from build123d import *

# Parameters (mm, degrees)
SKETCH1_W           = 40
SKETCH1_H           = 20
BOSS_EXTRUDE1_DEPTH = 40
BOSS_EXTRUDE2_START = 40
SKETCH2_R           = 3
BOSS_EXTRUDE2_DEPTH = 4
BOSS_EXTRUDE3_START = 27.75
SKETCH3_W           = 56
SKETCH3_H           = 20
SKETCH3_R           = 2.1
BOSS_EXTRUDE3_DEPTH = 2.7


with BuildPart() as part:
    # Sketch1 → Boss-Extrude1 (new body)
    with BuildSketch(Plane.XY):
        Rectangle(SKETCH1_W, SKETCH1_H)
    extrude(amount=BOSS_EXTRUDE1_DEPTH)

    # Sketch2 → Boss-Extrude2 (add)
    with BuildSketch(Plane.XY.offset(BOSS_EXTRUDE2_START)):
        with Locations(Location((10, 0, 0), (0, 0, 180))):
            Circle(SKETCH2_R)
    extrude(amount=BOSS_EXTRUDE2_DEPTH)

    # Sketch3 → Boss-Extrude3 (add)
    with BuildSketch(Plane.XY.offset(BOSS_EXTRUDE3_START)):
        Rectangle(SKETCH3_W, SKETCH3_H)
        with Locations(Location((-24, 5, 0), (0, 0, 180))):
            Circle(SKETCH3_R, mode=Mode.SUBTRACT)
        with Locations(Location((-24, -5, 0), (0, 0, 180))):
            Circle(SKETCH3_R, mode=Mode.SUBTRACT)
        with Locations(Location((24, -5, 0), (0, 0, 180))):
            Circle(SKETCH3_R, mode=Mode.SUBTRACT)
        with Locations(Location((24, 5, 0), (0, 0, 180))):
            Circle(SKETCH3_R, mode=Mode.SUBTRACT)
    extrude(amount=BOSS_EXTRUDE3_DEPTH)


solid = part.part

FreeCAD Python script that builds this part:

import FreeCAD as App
import Part
import Sketcher
Q = App.Units.Quantity

doc = App.newDocument("Part")
body = doc.addObject("PartDesign::Body", "Body")

# Sketch on XY plane
sketch1 = doc.addObject("Sketcher::SketchObject", "Sketch")
body.addObject(sketch1)
sketch1.AttachmentSupport = (doc.XY_Plane, [""])
sketch1.MapMode = "FlatFace"
sketch1.addGeometry(Part.LineSegment(App.Vector(-20, 10, 0), App.Vector(-20, -10, 0)), False)
sketch1.addGeometry(Part.LineSegment(App.Vector(-20, -10, 0), App.Vector(20, -10, 0)), False)
sketch1.addGeometry(Part.LineSegment(App.Vector(20, -10, 0), App.Vector(20, 10, 0)), False)
sketch1.addGeometry(Part.LineSegment(App.Vector(20, 10, 0), App.Vector(-20, 10, 0)), False)
sketch1.addConstraint(Sketcher.Constraint("Coincident", 0, 2, 1, 1))
sketch1.addConstraint(Sketcher.Constraint("Coincident", 1, 2, 2, 1))
sketch1.addConstraint(Sketcher.Constraint("Coincident", 2, 2, 3, 1))
sketch1.addConstraint(Sketcher.Constraint("Coincident", 3, 2, 0, 1))
sketch1.addConstraint(Sketcher.Constraint("Vertical", 0))
sketch1.addConstraint(Sketcher.Constraint("Horizontal", 1))
sketch1.addConstraint(Sketcher.Constraint("Vertical", 2))
sketch1.addConstraint(Sketcher.Constraint("Horizontal", 3))
sketch1.addConstraint(Sketcher.Constraint("Symmetric", 0, 2, 2, 2, -1, 1))
sketch1.addConstraint(Sketcher.Constraint("DistanceX", 1, 1, 1, 2, Q("40 mm")))
sketch1.addConstraint(Sketcher.Constraint("DistanceY", 0, 2, 0, 1, Q("20 mm")))
pad1 = doc.addObject("PartDesign::Pad", "Pad")
body.addObject(pad1)
pad1.Profile = sketch1
pad1.Length = 40

# Sketch on XY plane
sketch2 = doc.addObject("Sketcher::SketchObject", "Sketch001")
body.addObject(sketch2)
sketch2.AttachmentSupport = (doc.XY_Plane, [""])
sketch2.MapMode = "FlatFace"
sketch2.AttachmentOffset = App.Placement(App.Vector(0, 0, 40), App.Rotation())
sketch2.addGeometry(Part.Circle(App.Vector(10, 0, 0), App.Vector(0, 0, 1), 3), False)
sketch2.addConstraint(Sketcher.Constraint("PointOnObject", 0, 3, -1))
sketch2.addConstraint(Sketcher.Constraint("Diameter", 0, Q("6 mm")))
sketch2.addConstraint(Sketcher.Constraint("DistanceX", -1, 1, 0, 3, Q("10 mm")))
pad2 = doc.addObject("PartDesign::Pad", "Pad001")
body.addObject(pad2)
pad2.Profile = sketch2
pad2.Length = 4

# Sketch on XY plane
sketch3 = doc.addObject("Sketcher::SketchObject", "Sketch002")
body.addObject(sketch3)
sketch3.AttachmentSupport = (doc.XY_Plane, [""])
sketch3.MapMode = "FlatFace"
sketch3.AttachmentOffset = App.Placement(App.Vector(0, 0, 27.75), App.Rotation())
sketch3.addGeometry(Part.LineSegment(App.Vector(-28, 10, 0), App.Vector(-28, -10, 0)), False)
sketch3.addGeometry(Part.LineSegment(App.Vector(-28, -10, 0), App.Vector(28, -10, 0)), False)
sketch3.addGeometry(Part.LineSegment(App.Vector(28, -10, 0), App.Vector(28, 10, 0)), False)
sketch3.addGeometry(Part.LineSegment(App.Vector(28, 10, 0), App.Vector(-28, 10, 0)), False)
sketch3.addGeometry(Part.Circle(App.Vector(-24, -5, 0), App.Vector(0, 0, 1), 2.1), False)
sketch3.addGeometry(Part.Circle(App.Vector(24, -5, 0), App.Vector(0, 0, 1), 2.1), False)
sketch3.addGeometry(Part.Circle(App.Vector(-24, 5, 0), App.Vector(0, 0, 1), 2.1), False)
sketch3.addGeometry(Part.Circle(App.Vector(24, 5, 0), App.Vector(0, 0, 1), 2.1), False)
sketch3.addConstraint(Sketcher.Constraint("Coincident", 0, 2, 1, 1))
sketch3.addConstraint(Sketcher.Constraint("Coincident", 1, 2, 2, 1))
sketch3.addConstraint(Sketcher.Constraint("Coincident", 2, 2, 3, 1))
sketch3.addConstraint(Sketcher.Constraint("Coincident", 3, 2, 0, 1))
sketch3.addConstraint(Sketcher.Constraint("Vertical", 0))
sketch3.addConstraint(Sketcher.Constraint("Horizontal", 1))
sketch3.addConstraint(Sketcher.Constraint("Vertical", 2))
sketch3.addConstraint(Sketcher.Constraint("Horizontal", 3))
sketch3.addConstraint(Sketcher.Constraint("Equal", 4, 5))
sketch3.addConstraint(Sketcher.Constraint("Equal", 5, 6))
sketch3.addConstraint(Sketcher.Constraint("Equal", 6, 7))
sketch3.addConstraint(Sketcher.Constraint("Symmetric", 5, 3, 6, 3, -1, 1))
sketch3.addConstraint(Sketcher.Constraint("Symmetric", 4, 3, 7, 3, -1, 1))
sketch3.addConstraint(Sketcher.Constraint("Symmetric", 0, 2, 2, 2, -1, 1))
sketch3.addConstraint(Sketcher.Constraint("Symmetric", 4, 3, 5, 3, -2))
sketch3.addConstraint(Sketcher.Constraint("Diameter", 4, Q("4.2 mm")))
sketch3.addConstraint(Sketcher.Constraint("DistanceX", 1, 1, 1, 2, Q("56 mm")))
sketch3.addConstraint(Sketcher.Constraint("DistanceY", 0, 2, 0, 1, Q("20 mm")))
sketch3.addConstraint(Sketcher.Constraint("DistanceX", 4, 3, -1, 1, Q("24 mm")))
sketch3.addConstraint(Sketcher.Constraint("DistanceY", 4, 3, -1, 1, Q("5 mm")))
pad3 = doc.addObject("PartDesign::Pad", "Pad002")
body.addObject(pad3)
pad3.Profile = sketch3
pad3.Length = 2.7

doc.recompute()
